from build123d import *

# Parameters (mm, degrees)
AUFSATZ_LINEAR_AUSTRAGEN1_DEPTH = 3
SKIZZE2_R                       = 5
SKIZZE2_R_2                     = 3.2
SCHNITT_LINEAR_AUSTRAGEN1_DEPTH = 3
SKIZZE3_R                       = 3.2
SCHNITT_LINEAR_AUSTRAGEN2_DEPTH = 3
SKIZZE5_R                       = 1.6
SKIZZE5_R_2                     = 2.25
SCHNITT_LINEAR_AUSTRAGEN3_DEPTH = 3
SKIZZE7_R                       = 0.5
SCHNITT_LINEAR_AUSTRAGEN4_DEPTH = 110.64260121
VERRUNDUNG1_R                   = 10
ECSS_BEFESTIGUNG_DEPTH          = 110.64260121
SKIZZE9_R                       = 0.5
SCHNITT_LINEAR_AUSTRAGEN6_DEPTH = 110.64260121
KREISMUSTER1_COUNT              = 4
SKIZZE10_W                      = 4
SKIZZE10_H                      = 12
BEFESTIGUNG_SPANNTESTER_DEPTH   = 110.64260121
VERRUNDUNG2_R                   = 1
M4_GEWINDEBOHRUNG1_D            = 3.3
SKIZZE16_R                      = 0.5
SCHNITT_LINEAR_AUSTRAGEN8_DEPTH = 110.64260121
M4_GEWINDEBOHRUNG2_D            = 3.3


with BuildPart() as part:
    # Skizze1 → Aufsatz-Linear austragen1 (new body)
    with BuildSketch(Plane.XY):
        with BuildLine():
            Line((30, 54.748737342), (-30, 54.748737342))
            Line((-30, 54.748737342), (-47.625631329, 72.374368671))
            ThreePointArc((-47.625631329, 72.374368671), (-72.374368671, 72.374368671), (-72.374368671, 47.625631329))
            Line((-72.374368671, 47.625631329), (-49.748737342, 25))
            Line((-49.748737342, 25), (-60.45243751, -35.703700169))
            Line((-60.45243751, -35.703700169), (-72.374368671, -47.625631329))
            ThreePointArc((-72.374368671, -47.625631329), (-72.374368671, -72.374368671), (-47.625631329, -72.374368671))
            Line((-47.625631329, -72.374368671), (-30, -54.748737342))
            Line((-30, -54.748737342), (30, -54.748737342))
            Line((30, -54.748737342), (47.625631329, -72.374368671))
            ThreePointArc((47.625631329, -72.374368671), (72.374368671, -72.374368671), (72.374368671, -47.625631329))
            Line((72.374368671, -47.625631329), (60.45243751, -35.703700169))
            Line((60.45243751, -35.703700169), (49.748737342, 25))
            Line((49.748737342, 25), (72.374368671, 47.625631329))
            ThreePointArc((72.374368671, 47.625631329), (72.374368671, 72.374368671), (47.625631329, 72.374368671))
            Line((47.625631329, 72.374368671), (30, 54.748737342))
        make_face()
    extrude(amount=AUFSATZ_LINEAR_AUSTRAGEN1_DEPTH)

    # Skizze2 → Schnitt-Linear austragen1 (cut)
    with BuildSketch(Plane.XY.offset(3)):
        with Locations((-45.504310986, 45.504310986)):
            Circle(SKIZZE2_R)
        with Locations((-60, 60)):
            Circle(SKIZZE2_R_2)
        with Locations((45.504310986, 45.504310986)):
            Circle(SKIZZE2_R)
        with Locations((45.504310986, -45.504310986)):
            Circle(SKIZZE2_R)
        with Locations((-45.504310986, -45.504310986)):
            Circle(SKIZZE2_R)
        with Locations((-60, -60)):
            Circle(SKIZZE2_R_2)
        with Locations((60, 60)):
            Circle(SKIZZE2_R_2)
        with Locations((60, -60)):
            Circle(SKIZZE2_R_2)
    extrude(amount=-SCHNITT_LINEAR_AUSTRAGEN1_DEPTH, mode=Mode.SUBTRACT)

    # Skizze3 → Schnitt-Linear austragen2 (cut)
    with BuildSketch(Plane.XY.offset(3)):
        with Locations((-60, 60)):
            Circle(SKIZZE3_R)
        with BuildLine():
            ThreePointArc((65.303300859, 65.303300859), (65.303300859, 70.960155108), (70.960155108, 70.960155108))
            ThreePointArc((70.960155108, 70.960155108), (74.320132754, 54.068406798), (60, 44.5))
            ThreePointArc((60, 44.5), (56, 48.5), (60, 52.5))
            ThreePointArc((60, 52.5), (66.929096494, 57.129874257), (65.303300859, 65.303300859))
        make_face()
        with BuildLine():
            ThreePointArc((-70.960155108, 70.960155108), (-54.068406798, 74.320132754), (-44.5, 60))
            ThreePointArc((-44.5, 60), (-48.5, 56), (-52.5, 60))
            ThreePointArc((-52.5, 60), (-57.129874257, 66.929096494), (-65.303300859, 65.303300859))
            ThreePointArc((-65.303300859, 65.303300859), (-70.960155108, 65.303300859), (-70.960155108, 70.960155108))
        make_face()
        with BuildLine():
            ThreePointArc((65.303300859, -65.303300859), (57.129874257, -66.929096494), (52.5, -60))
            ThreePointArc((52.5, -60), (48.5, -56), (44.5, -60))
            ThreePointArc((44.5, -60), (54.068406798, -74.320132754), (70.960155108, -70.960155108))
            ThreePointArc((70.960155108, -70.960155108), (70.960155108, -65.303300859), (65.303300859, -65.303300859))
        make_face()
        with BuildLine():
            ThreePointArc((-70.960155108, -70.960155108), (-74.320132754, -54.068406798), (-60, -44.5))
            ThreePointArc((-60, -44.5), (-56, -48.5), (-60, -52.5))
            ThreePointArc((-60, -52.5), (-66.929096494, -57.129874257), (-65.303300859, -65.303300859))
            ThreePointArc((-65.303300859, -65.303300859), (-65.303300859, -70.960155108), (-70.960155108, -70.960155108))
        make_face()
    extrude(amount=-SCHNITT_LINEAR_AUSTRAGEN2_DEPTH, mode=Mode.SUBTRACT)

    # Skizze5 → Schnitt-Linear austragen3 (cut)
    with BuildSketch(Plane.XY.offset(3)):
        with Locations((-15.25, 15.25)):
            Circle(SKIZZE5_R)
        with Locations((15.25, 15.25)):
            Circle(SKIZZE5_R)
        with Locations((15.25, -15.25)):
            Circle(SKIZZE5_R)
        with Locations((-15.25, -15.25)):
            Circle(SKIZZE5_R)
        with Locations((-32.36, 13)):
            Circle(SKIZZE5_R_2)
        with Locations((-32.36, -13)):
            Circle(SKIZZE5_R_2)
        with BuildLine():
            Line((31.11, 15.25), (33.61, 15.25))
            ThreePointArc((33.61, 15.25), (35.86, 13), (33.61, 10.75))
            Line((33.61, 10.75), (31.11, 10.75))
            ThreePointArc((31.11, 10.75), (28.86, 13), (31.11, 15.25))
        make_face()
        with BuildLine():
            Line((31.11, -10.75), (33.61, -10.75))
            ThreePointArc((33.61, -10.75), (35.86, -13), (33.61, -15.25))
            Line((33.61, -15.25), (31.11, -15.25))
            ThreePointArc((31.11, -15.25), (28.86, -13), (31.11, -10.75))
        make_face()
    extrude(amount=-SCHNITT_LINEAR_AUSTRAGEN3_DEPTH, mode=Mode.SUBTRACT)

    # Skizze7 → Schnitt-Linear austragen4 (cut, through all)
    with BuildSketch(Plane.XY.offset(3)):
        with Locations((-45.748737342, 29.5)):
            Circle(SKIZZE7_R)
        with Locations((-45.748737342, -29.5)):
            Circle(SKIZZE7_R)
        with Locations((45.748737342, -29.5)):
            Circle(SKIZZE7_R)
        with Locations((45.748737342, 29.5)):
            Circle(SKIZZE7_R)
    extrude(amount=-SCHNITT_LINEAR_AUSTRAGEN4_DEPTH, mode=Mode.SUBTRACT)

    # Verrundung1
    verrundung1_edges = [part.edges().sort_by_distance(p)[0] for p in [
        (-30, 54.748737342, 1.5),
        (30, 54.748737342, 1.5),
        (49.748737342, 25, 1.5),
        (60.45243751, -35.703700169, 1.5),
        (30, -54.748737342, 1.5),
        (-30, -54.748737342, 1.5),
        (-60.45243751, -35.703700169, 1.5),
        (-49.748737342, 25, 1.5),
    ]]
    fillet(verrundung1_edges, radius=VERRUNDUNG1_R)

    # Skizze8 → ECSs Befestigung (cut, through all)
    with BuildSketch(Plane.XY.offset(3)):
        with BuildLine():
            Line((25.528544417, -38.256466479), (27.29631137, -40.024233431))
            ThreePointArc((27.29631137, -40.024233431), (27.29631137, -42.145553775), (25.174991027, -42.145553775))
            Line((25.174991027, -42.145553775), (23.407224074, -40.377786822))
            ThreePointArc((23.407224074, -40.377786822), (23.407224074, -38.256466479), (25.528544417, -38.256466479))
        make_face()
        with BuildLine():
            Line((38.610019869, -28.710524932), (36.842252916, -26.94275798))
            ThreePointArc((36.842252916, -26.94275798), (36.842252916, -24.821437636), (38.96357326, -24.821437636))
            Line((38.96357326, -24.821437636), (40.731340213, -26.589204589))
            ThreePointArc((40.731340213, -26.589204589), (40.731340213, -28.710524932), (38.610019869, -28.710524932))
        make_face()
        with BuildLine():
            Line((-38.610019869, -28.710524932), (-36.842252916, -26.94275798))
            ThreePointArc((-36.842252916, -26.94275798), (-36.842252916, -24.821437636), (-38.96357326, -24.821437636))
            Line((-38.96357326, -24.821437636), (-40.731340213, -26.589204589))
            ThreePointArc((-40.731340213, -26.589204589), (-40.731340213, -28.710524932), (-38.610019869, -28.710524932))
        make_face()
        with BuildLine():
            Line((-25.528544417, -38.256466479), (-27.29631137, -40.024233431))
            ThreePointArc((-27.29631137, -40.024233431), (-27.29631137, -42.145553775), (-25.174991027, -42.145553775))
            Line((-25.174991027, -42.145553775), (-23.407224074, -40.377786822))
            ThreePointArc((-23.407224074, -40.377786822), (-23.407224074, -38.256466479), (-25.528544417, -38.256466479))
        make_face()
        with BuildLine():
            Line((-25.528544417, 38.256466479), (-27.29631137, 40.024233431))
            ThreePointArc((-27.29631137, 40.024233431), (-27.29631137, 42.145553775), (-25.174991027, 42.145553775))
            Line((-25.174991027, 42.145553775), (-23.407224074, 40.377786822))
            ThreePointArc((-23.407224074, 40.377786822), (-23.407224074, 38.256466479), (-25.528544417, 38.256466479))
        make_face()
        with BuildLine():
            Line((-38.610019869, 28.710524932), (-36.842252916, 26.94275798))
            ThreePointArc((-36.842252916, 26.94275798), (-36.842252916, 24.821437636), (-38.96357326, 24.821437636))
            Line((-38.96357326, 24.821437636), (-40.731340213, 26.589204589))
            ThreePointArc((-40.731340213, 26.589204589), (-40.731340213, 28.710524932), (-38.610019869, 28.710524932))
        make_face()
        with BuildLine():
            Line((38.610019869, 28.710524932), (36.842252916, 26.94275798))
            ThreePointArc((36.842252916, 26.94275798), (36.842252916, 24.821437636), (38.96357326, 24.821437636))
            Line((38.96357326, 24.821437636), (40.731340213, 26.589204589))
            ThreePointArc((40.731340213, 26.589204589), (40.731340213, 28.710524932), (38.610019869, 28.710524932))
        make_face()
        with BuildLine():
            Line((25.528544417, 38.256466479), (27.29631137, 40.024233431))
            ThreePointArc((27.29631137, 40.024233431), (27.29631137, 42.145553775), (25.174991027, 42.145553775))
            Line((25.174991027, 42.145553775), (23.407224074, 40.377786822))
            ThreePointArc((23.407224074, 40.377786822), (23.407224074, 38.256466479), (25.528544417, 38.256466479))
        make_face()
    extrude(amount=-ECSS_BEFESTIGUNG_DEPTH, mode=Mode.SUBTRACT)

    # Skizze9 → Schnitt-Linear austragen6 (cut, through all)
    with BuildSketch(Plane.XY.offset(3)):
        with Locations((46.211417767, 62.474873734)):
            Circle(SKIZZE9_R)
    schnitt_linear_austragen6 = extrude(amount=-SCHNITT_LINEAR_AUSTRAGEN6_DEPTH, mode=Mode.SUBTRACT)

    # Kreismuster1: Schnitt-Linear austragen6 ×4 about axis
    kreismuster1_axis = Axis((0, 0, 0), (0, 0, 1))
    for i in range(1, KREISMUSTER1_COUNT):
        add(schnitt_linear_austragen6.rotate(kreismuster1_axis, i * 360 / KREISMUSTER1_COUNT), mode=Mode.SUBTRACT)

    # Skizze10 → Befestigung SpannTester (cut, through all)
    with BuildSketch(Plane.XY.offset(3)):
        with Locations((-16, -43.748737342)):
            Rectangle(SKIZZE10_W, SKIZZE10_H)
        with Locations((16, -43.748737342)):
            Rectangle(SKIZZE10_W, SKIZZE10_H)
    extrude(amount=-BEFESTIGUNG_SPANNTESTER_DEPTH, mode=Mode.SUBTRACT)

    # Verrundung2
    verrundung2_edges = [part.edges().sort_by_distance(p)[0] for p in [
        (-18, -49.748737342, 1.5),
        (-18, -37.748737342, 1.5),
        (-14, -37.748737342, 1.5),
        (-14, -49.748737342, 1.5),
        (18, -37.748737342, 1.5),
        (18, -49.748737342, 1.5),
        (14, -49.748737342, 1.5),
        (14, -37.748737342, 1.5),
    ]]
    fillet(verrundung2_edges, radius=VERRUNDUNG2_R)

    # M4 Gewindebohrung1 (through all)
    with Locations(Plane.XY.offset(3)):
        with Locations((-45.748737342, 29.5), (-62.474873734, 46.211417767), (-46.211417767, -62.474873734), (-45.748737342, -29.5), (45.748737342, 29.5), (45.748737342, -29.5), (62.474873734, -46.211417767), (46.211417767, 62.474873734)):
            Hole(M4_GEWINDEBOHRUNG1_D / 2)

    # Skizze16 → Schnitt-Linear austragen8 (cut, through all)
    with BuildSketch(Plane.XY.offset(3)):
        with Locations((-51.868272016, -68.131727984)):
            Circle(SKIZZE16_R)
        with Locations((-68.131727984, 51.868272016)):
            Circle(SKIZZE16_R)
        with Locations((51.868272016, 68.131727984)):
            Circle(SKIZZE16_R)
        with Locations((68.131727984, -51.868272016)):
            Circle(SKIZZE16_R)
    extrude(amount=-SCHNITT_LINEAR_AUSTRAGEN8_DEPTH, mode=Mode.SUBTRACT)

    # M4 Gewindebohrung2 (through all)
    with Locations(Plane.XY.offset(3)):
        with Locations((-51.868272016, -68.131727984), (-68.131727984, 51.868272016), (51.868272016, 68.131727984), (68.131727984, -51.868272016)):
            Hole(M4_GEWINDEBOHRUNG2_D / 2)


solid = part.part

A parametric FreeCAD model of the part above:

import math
import FreeCAD as App
import Part
import Sketcher
Q = App.Units.Quantity


def edges_at(feature, points):
    """Names of the edges that pass closest to the given points."""
    edges = feature.Shape.Edges
    near = lambda p: min(range(len(edges)), key=lambda i: edges[i].distToShape(Part.Vertex(*p))[0])
    return sorted({f"Edge{near(p) + 1}" for p in points})


def add_polygon(sketch, points):
    """Adds a closed chain of lines whose ends are joined by coincident constraints."""
    first, n = sketch.GeometryCount, len(points)
    for a, b in zip(points, points[1:] + points[:1]):
        sketch.addGeometry(Part.LineSegment(App.Vector(*a, 0), App.Vector(*b, 0)), False)
    for i in range(n):
        sketch.addConstraint(Sketcher.Constraint("Coincident", first + i, 2, first + (i + 1) % n, 1))

doc = App.newDocument("Part")
body = doc.addObject("PartDesign::Body", "Body")

sketch1 = doc.addObject("Sketcher::SketchObject", "Sketch")
body.addObject(sketch1)
sketch1.AttachmentSupport = (doc.XY_Plane, [""])
sketch1.MapMode = "FlatFace"
sketch1.addGeometry([
    Part.LineSegment(App.Vector(30, 55, 0), App.Vector(-30, 55, 0)),
    Part.LineSegment(App.Vector(-30, 55, 0), App.Vector(-48, 72, 0)),
    Part.ArcOfCircle(Part.Circle(App.Vector(-60, 60, 0), App.Vector(0, 0, 1), 18), math.radians(45), math.radians(225)),
    Part.LineSegment(App.Vector(-72, 48, 0), App.Vector(-50, 25, 0)),
    Part.LineSegment(App.Vector(-50, 25, 0), App.Vector(-60, -36, 0)),
    Part.LineSegment(App.Vector(-60, -36, 0), App.Vector(-72, -48, 0)),
    Part.ArcOfCircle(Part.Circle(App.Vector(-60, -60, 0), App.Vector(0, 0, 1), 18), math.radians(135), math.radians(315)),
    Part.LineSegment(App.Vector(-48, -72, 0), App.Vector(-30, -55, 0)),
    Part.LineSegment(App.Vector(-30, -55, 0), App.Vector(30, -55, 0)),
    Part.LineSegment(App.Vector(30, -55, 0), App.Vector(48, -72, 0)),
    Part.ArcOfCircle(Part.Circle(App.Vector(60, -60, 0), App.Vector(0, 0, 1), 18), math.radians(-135), math.radians(45)),
    Part.LineSegment(App.Vector(72, -48, 0), App.Vector(60, -36, 0)),
    Part.LineSegment(App.Vector(60, -36, 0), App.Vector(50, 25, 0)),
    Part.LineSegment(App.Vector(50, 25, 0), App.Vector(72, 48, 0)),
    Part.ArcOfCircle(Part.Circle(App.Vector(60, 60, 0), App.Vector(0, 0, 1), 18), math.radians(-45), math.radians(135)),
    Part.LineSegment(App.Vector(48, 72, 0), App.Vector(30, 55, 0)),
], False)
sketch1.addConstraint([
    Sketcher.Constraint("Coincident", 0, 2, 1, 1),
    Sketcher.Constraint("Tangent", 1, 2, 2, 1),
    Sketcher.Constraint("Tangent", 2, 2, 3, 1),
    Sketcher.Constraint("Coincident", 3, 2, 4, 1),
    Sketcher.Constraint("Coincident", 4, 2, 5, 1),
    Sketcher.Constraint("Tangent", 5, 2, 6, 1),
    Sketcher.Constraint("Tangent", 6, 2, 7, 1),
    Sketcher.Constraint("Coincident", 7, 2, 8, 1),
    Sketcher.Constraint("Coincident", 8, 2, 9, 1),
    Sketcher.Constraint("Tangent", 9, 2, 10, 1),
    Sketcher.Constraint("Tangent", 10, 2, 11, 1),
    Sketcher.Constraint("Coincident", 11, 2, 12, 1),
    Sketcher.Constraint("Coincident", 12, 2, 13, 1),
    Sketcher.Constraint("Tangent", 13, 2, 14, 1),
    Sketcher.Constraint("Tangent", 14, 2, 15, 1),
    Sketcher.Constraint("Coincident", 15, 2, 0, 1),
    Sketcher.Constraint("Horizontal", 0),
    Sketcher.Constraint("Horizontal", 8),
    Sketcher.Constraint("Equal", 2, 6),
    Sketcher.Constraint("Equal", 6, 10),
    Sketcher.Constraint("Equal", 10, 14),
    Sketcher.Constraint("Symmetric", 2, 3, 10, 3, -1, 1),
    Sketcher.Constraint("Symmetric", 6, 3, 14, 3, -1, 1),
    Sketcher.Constraint("Symmetric", 0, 2, 8, 2, -1, 1),
    Sketcher.Constraint("Symmetric", 6, 3, 10, 3, -2),
    Sketcher.Constraint("Symmetric", 4, 2, 11, 2, -2),
    Sketcher.Constraint("Symmetric", 3, 2, 12, 2, -2),
    Sketcher.Constraint("Parallel", 1, 3),
    Sketcher.Constraint("Perpendicular", 3, 5),
    Sketcher.Constraint("Parallel", 5, 7),
    Sketcher.Constraint("Parallel", 9, 11),
    Sketcher.Constraint("Parallel", 13, 15),
    Sketcher.Constraint("Radius", 2, 17.5),
    Sketcher.Constraint("DistanceX", 0, 2, 0, 1, 60.0),
    Sketcher.Constraint("Angle", 4, Q("-100 deg")),
    Sketcher.Constraint("DistanceX", 2, 3, -1, 1, 60.0),
    Sketcher.Constraint("DistanceY", -1, 1, 2, 3, 60.0),
    Sketcher.Constraint("DistanceY", -1, 1, 3, 2, 25.0),
])
pad1 = doc.addObject("PartDesign::Pad", "Pad")
body.addObject(pad1)
pad1.Profile = sketch1
pad1.Length = 3

sketch2 = doc.addObject("Sketcher::SketchObject", "Sketch001")
body.addObject(sketch2)
sketch2.AttachmentSupport = (doc.XY_Plane, [""])
sketch2.MapMode = "FlatFace"
sketch2.AttachmentOffset = App.Placement(App.Vector(0, 0, 3), App.Rotation())
sketch2.addGeometry([
    Part.Circle(App.Vector(-45.5, 45.5, 0), App.Vector(0, 0, 1), 5),
    Part.Circle(App.Vector(-60, 60, 0), App.Vector(0, 0, 1), 3.2),
    Part.Circle(App.Vector(45.5, 45.5, 0), App.Vector(0, 0, 1), 5),
    Part.Circle(App.Vector(45.5, -45.5, 0), App.Vector(0, 0, 1), 5),
    Part.Circle(App.Vector(-45.5, -45.5, 0), App.Vector(0, 0, 1), 5),
    Part.Circle(App.Vector(-60, -60, 0), App.Vector(0, 0, 1), 3.2),
    Part.Circle(App.Vector(60, 60, 0), App.Vector(0, 0, 1), 3.2),
    Part.Circle(App.Vector(60, -60, 0), App.Vector(0, 0, 1), 3.2),
], False)
sketch2.addConstraint([
    Sketcher.Constraint("Equal", 0, 2),
    Sketcher.Constraint("Equal", 2, 3),
    Sketcher.Constraint("Equal", 3, 4),
    Sketcher.Constraint("Equal", 1, 5),
    Sketcher.Constraint("Equal", 5, 6),
    Sketcher.Constraint("Equal", 6, 7),
    Sketcher.Constraint("Symmetric", 0, 3, 3, 3, -1, 1),
    Sketcher.Constraint("Symmetric", 2, 3, 4, 3, -1, 1),
    Sketcher.Constraint("Symmetric", 5, 3, 6, 3, -1, 1),
    Sketcher.Constraint("Symmetric", 1, 3, 7, 3, -1, 1),
    Sketcher.Constraint("Symmetric", 0, 3, 2, 3, -2),
    Sketcher.Constraint("Symmetric", 1, 3, 6, 3, -2),
    Sketcher.Constraint("Diameter", 0, 10.0),
    Sketcher.Constraint("Diameter", 1, 6.4),
    Sketcher.Constraint("DistanceX", 1, 3, -1, 1, 60.0),
    Sketcher.Constraint("DistanceY", -1, 1, 1, 3, 60.0),
    Sketcher.Constraint("DistanceX", 0, 3, -1, 1, 45.504311),
    Sketcher.Constraint("DistanceY", -1, 1, 0, 3, 45.504311),
])
pocket1 = doc.addObject("PartDesign::Pocket", "Pocket")
body.addObject(pocket1)
pocket1.Profile = sketch2
pocket1.Length = 3

sketch3 = doc.addObject("Sketcher::SketchObject", "Sketch002")
body.addObject(sketch3)
sketch3.AttachmentSupport = (doc.XY_Plane, [""])
sketch3.MapMode = "FlatFace"
sketch3.AttachmentOffset = App.Placement(App.Vector(0, 0, 3), App.Rotation())
sketch3.addGeometry([
    Part.Circle(App.Vector(-60, 60, 0), App.Vector(0, 0, 1), 3.2),
    Part.ArcOfCircle(Part.Circle(App.Vector(68.1, 68.1, 0), App.Vector(0, 0, 1), 4), math.radians(45), math.radians(225)),
    Part.ArcOfCircle(Part.Circle(App.Vector(60, 60, 0), App.Vector(0, 0, 1), 7.5), math.radians(-90), math.radians(45)),
    Part.ArcOfCircle(Part.Circle(App.Vector(60, 48.5, 0), App.Vector(0, 0, 1), 4), math.radians(90), math.radians(270)),
    Part.ArcOfCircle(Part.Circle(App.Vector(60, 60, 0), App.Vector(0, 0, 1), 15.5), math.radians(-90), math.radians(45)),
    Part.ArcOfCircle(Part.Circle(App.Vector(-60, 60, 0), App.Vector(0, 0, 1), 15.5), math.radians(0), math.radians(135)),
    Part.ArcOfCircle(Part.Circle(App.Vector(-68.1, 68.1, 0), App.Vector(0, 0, 1), 4), math.radians(135), math.radians(315)),
    Part.ArcOfCircle(Part.Circle(App.Vector(-60, 60, 0), App.Vector(0, 0, 1), 7.5), math.radians(0), math.radians(135)),
    Part.ArcOfCircle(Part.Circle(App.Vector(-48.5, 60, 0), App.Vector(0, 0, 1), 4), math.radians(180), math.radians(360)),
    Part.ArcOfCircle(Part.Circle(App.Vector(60, -60, 0), App.Vector(0, 0, 1), 7.5), math.radians(180), math.radians(315)),
    Part.ArcOfCircle(Part.Circle(App.Vector(48.5, -60, 0), App.Vector(0, 0, 1), 4), math.radians(0), math.radians(180)),
    Part.ArcOfCircle(Part.Circle(App.Vector(60, -60, 0), App.Vector(0, 0, 1), 15.5), math.radians(180), math.radians(315)),
    Part.ArcOfCircle(Part.Circle(App.Vector(68.1, -68.1, 0), App.Vector(0, 0, 1), 4), math.radians(-45), math.radians(135)),
    Part.ArcOfCircle(Part.Circle(App.Vector(-60, -60, 0), App.Vector(0, 0, 1), 15.5), math.radians(90), math.radians(225)),
    Part.ArcOfCircle(Part.Circle(App.Vector(-68.1, -68.1, 0), App.Vector(0, 0, 1), 4), math.radians(-135), math.radians(45)),
    Part.ArcOfCircle(Part.Circle(App.Vector(-60, -60, 0), App.Vector(0, 0, 1), 7.5), math.radians(90), math.radians(225)),
    Part.ArcOfCircle(Part.Circle(App.Vector(-60, -48.5, 0), App.Vector(0, 0, 1), 4), math.radians(-90), math.radians(90)),
], False)
sketch3.addConstraint([
    Sketcher.Constraint("Tangent", 1, 2, 2, 2),
    Sketcher.Constraint("Tangent", 2, 1, 3, 1),
    Sketcher.Constraint("Tangent", 3, 2, 4, 1),
    Sketcher.Constraint("Tangent", 4, 2, 1, 1),
    Sketcher.Constraint("Tangent", 5, 2, 6, 1),
    Sketcher.Constraint("Tangent", 6, 2, 7, 2),
    Sketcher.Constraint("Tangent", 7, 1, 8, 1),
    Sketcher.Constraint("Tangent", 8, 2, 5, 1),
    Sketcher.Constraint("Tangent", 9, 1, 10, 1),
    Sketcher.Constraint("Tangent", 10, 2, 11, 1),
    Sketcher.Constraint("Tangent", 11, 2, 12, 1),
    Sketcher.Constraint("Tangent", 12, 2, 9, 2),
    Sketcher.Constraint("Tangent", 13, 2, 14, 1),
    Sketcher.Constraint("Tangent", 14, 2, 15, 2),
    Sketcher.Constraint("Tangent", 15, 1, 16, 1),
    Sketcher.Constraint("Tangent", 16, 2, 13, 1),
    Sketcher.Constraint("Coincident", 4, 3, 2, 3),
    Sketcher.Constraint("Coincident", 5, 3, 0, 3),
    Sketcher.Constraint("Coincident", 7, 3, 0, 3),
    Sketcher.Constraint("Coincident", 11, 3, 9, 3),
    Sketcher.Constraint("Coincident", 15, 3, 13, 3),
    Sketcher.Constraint("Equal", 4, 5),
    Sketcher.Constraint("Equal", 3, 6),
    Sketcher.Constraint("Equal", 7, 9),
    Sketcher.Constraint("Equal", 8, 10),
    Sketcher.Constraint("Equal", 11, 13),
    Sketcher.Constraint("Equal", 12, 14),
    Sketcher.Constraint("Symmetric", 0, 3, 9, 3, -1, 1),
    Sketcher.Constraint("Symmetric", 2, 3, 13, 3, -1, 1),
    Sketcher.Constraint("Symmetric", 0, 3, 2, 3, -2),
    Sketcher.Constraint("Horizontal", 1, 3, 6, 3),
    Sketcher.Constraint("Horizontal", 7, 3, 8, 3),
    Sketcher.Constraint("Horizontal", 9, 3, 10, 3),
    Sketcher.Constraint("Horizontal", 12, 3, 14, 3),
    Sketcher.Constraint("Vertical", 2, 3, 3, 3),
    Sketcher.Constraint("Vertical", 1, 3, 12, 3),
    Sketcher.Constraint("Vertical", 15, 3, 16, 3),
    Sketcher.Constraint("Radius", 1, 4.0),
    Sketcher.Constraint("Diameter", 0, 6.4),
    Sketcher.Constraint("Radius", 2, 7.5),
    Sketcher.Constraint("DistanceX", 0, 3, -1, 1, 60.0),
    Sketcher.Constraint("DistanceY", -1, 1, 0, 3, 60.0),
    Sketcher.Constraint("DistanceX", -1, 1, 1, 2, 65.303301),
])
pocket2 = doc.addObject("PartDesign::Pocket", "Pocket001")
body.addObject(pocket2)
pocket2.Profile = sketch3
pocket2.Length = 3

sketch4 = doc.addObject("Sketcher::SketchObject", "Sketch003")
body.addObject(sketch4)
sketch4.AttachmentSupport = (doc.XY_Plane, [""])
sketch4.MapMode = "FlatFace"
sketch4.AttachmentOffset = App.Placement(App.Vector(0, 0, 3), App.Rotation())
sketch4.addGeometry([
    Part.Circle(App.Vector(-15.2, 15.2, 0), App.Vector(0, 0, 1), 1.6),
    Part.Circle(App.Vector(15.2, 15.2, 0), App.Vector(0, 0, 1), 1.6),
    Part.Circle(App.Vector(15.2, -15.2, 0), App.Vector(0, 0, 1), 1.6),
    Part.Circle(App.Vector(-15.2, -15.2, 0), App.Vector(0, 0, 1), 1.6),
    Part.Circle(App.Vector(-32.4, 13, 0), App.Vector(0, 0, 1), 2.2),
    Part.Circle(App.Vector(-32.4, -13, 0), App.Vector(0, 0, 1), 2.2),
    Part.LineSegment(App.Vector(33.6, 15.2, 0), App.Vector(31.1, 15.2, 0)),
    Part.ArcOfCircle(Part.Circle(App.Vector(31.1, 13, 0), App.Vector(0, 0, 1), 2.2), math.radians(90), math.radians(270)),
    Part.LineSegment(App.Vector(31.1, 10.8, 0), App.Vector(33.6, 10.8, 0)),
    Part.ArcOfCircle(Part.Circle(App.Vector(33.6, 13, 0), App.Vector(0, 0, 1), 2.2), math.radians(-90), math.radians(90)),
    Part.LineSegment(App.Vector(33.6, -10.8, 0), App.Vector(31.1, -10.8, 0)),
    Part.ArcOfCircle(Part.Circle(App.Vector(31.1, -13, 0), App.Vector(0, 0, 1), 2.2), math.radians(90), math.radians(270)),
    Part.LineSegment(App.Vector(31.1, -15.2, 0), App.Vector(33.6, -15.2, 0)),
    Part.ArcOfCircle(Part.Circle(App.Vector(33.6, -13, 0), App.Vector(0, 0, 1), 2.2), math.radians(-90), math.radians(90)),
], False)
sketch4.addConstraint([
    Sketcher.Constraint("Tangent", 6, 2, 7, 1),
    Sketcher.Constraint("Tangent", 7, 2, 8, 1),
    Sketcher.Constraint("Tangent", 8, 2, 9, 1),
    Sketcher.Constraint("Tangent", 9, 2, 6, 1),
    Sketcher.Constraint("Tangent", 10, 2, 11, 1),
    Sketcher.Constraint("Tangent", 11, 2, 12, 1),
    Sketcher.Constraint("Tangent", 12, 2, 13, 1),
    Sketcher.Constraint("Tangent", 13, 2, 10, 1),
    Sketcher.Constraint("Horizontal", 6),
    Sketcher.Constraint("Horizontal", 8),
    Sketcher.Constraint("Horizontal", 10),
    Sketcher.Constraint("Horizontal", 12),
    Sketcher.Constraint("Equal", 0, 1),
    Sketcher.Constraint("Equal", 1, 2),
    Sketcher.Constraint("Equal", 2, 3),
    Sketcher.Constraint("Equal", 4, 5),
    Sketcher.Constraint("Equal", 5, 7),
    Sketcher.Constraint("Equal", 9, 11),
    Sketcher.Constraint("Symmetric", 0, 3, 2, 3, -1, 1),
    Sketcher.Constraint("Symmetric", 1, 3, 3, 3, -1, 1),
    Sketcher.Constraint("Symmetric", 0, 3, 1, 3, -2),
    Sketcher.Constraint("Symmetric", 4, 3, 5, 3, -1),
    Sketcher.Constraint("Symmetric", 7, 3, 11, 3, -1),
    Sketcher.Constraint("Horizontal", 4, 3, 7, 3),
    Sketcher.Constraint("Horizontal", 1, 3, 6, 2),
    Sketcher.Constraint("Vertical", 9, 3, 13, 3),
    Sketcher.Constraint("Diameter", 0, 3.2),
    Sketcher.Constraint("Diameter", 4, 4.5),
    Sketcher.Constraint("DistanceX", 6, 2, 6, 1, 2.5),
    Sketcher.Constraint("DistanceY", -1, 1, 4, 3, 13.0),
    Sketcher.Constraint("DistanceX", 0, 3, 1, 3, 30.5),
    Sketcher.Constraint("DistanceX", 4, 3, -1, 1, 32.36),
    Sketcher.Constraint("DistanceX", -1, 1, 7, 3, 31.11),
])
pocket3 = doc.addObject("PartDesign::Pocket", "Pocket002")
body.addObject(pocket3)
pocket3.Profile = sketch4
pocket3.Length = 3

sketch5 = doc.addObject("Sketcher::SketchObject", "Sketch004")
body.addObject(sketch5)
sketch5.AttachmentSupport = (doc.XY_Plane, [""])
sketch5.MapMode = "FlatFace"
sketch5.AttachmentOffset = App.Placement(App.Vector(0, 0, 3), App.Rotation())
sketch5.addGeometry([
    Part.Circle(App.Vector(-45.7, 29.5, 0), App.Vector(0, 0, 1), 0.5),
    Part.Circle(App.Vector(-45.7, -29.5, 0), App.Vector(0, 0, 1), 0.5),
    Part.Circle(App.Vector(45.7, -29.5, 0), App.Vector(0, 0, 1), 0.5),
    Part.Circle(App.Vector(45.7, 29.5, 0), App.Vector(0, 0, 1), 0.5),
], False)
sketch5.addConstraint([
    Sketcher.Constraint("Equal", 0, 1),
    Sketcher.Constraint("Equal", 1, 2),
    Sketcher.Constraint("Equal", 2, 3),
    Sketcher.Constraint("Symmetric", 0, 3, 2, 3, -1, 1),
    Sketcher.Constraint("Symmetric", 1, 3, 3, 3, -1, 1),
    Sketcher.Constraint("Symmetric", 1, 3, 2, 3, -2),
    Sketcher.Constraint("Diameter", 0, 1.0),
    Sketcher.Constraint("DistanceY", 1, 3, 0, 3, 59.0),
    Sketcher.Constraint("DistanceX", 0, 3, -1, 1, 45.748737),
])
pocket4 = doc.addObject("PartDesign::Pocket", "Pocket003")
body.addObject(pocket4)
pocket4.Profile = sketch5
pocket4.Type = "ThroughAll"
doc.recompute()

fillet = doc.addObject("PartDesign::Fillet", "Fillet")
body.addObject(fillet)
fillet.Base = (pocket4, edges_at(pocket4, [
    (-30, 54.749, 1.5),
    (30, 54.749, 1.5),
    (49.749, 25, 1.5),
    (60.452, -35.704, 1.5),
    (30, -54.749, 1.5),
    (-30, -54.749, 1.5),
    (-60.452, -35.704, 1.5),
    (-49.749, 25, 1.5),
]))
fillet.Radius = 10

sketch6 = doc.addObject("Sketcher::SketchObject", "Sketch005")
body.addObject(sketch6)
sketch6.AttachmentSupport = (doc.XY_Plane, [""])
sketch6.MapMode = "FlatFace"
sketch6.AttachmentOffset = App.Placement(App.Vector(0, 0, 3), App.Rotation())
sketch6.addGeometry([
    Part.LineSegment(App.Vector(27.3, -40, 0), App.Vector(25.5, -38.3, 0)),
    Part.ArcOfCircle(Part.Circle(App.Vector(24.5, -39.3, 0), App.Vector(0, 0, 1), 1.5), math.radians(45), math.radians(225)),
    Part.LineSegment(App.Vector(23.4, -40.4, 0), App.Vector(25.2, -42.1, 0)),
    Part.ArcOfCircle(Part.Circle(App.Vector(26.2, -41.1, 0), App.Vector(0, 0, 1), 1.5), math.radians(-135), math.radians(45)),
    Part.LineSegment(App.Vector(36.8, -26.9, 0), App.Vector(38.6, -28.7, 0)),
    Part.ArcOfCircle(Part.Circle(App.Vector(39.7, -27.6, 0), App.Vector(0, 0, 1), 1.5), math.radians(-135), math.radians(45)),
    Part.LineSegment(App.Vector(40.7, -26.6, 0), App.Vector(39, -24.8, 0)),
    Part.ArcOfCircle(Part.Circle(App.Vector(37.9, -25.9, 0), App.Vector(0, 0, 1), 1.5), math.radians(45), math.radians(225)),
    Part.LineSegment(App.Vector(-38.6, -28.7, 0), App.Vector(-36.8, -26.9, 0)),
    Part.ArcOfCircle(Part.Circle(App.Vector(-37.9, -25.9, 0), App.Vector(0, 0, 1), 1.5), math.radians(-45), math.radians(135)),
    Part.LineSegment(App.Vector(-39, -24.8, 0), App.Vector(-40.7, -26.6, 0)),
    Part.ArcOfCircle(Part.Circle(App.Vector(-39.7, -27.6, 0), App.Vector(0, 0, 1), 1.5), math.radians(135), math.radians(315)),
    Part.LineSegment(App.Vector(-25.5, -38.3, 0), App.Vector(-27.3, -40, 0)),
    Part.ArcOfCircle(Part.Circle(App.Vector(-26.2, -41.1, 0), App.Vector(0, 0, 1), 1.5), math.radians(135), math.radians(315)),
    Part.LineSegment(App.Vector(-25.2, -42.1, 0), App.Vector(-23.4, -40.4, 0)),
    Part.ArcOfCircle(Part.Circle(App.Vector(-24.5, -39.3, 0), App.Vector(0, 0, 1), 1.5), math.radians(-45), math.radians(135)),
    Part.LineSegment(App.Vector(-27.3, 40, 0), App.Vector(-25.5, 38.3, 0)),
    Part.ArcOfCircle(Part.Circle(App.Vector(-24.5, 39.3, 0), App.Vector(0, 0, 1), 1.5), math.radians(-135), math.radians(45)),
    Part.LineSegment(App.Vector(-23.4, 40.4, 0), App.Vector(-25.2, 42.1, 0)),
    Part.ArcOfCircle(Part.Circle(App.Vector(-26.2, 41.1, 0), App.Vector(0, 0, 1), 1.5), math.radians(45), math.radians(225)),
    Part.LineSegment(App.Vector(-36.8, 26.9, 0), App.Vector(-38.6, 28.7, 0)),
    Part.ArcOfCircle(Part.Circle(App.Vector(-39.7, 27.6, 0), App.Vector(0, 0, 1), 1.5), math.radians(45), math.radians(225)),
    Part.LineSegment(App.Vector(-40.7, 26.6, 0), App.Vector(-39, 24.8, 0)),
    Part.ArcOfCircle(Part.Circle(App.Vector(-37.9, 25.9, 0), App.Vector(0, 0, 1), 1.5), math.radians(-135), math.radians(45)),
    Part.LineSegment(App.Vector(38.6, 28.7, 0), App.Vector(36.8, 26.9, 0)),
    Part.ArcOfCircle(Part.Circle(App.Vector(37.9, 25.9, 0), App.Vector(0, 0, 1), 1.5), math.radians(135), math.radians(315)),
    Part.LineSegment(App.Vector(39, 24.8, 0), App.Vector(40.7, 26.6, 0)),
    Part.ArcOfCircle(Part.Circle(App.Vector(39.7, 27.6, 0), App.Vector(0, 0, 1), 1.5), math.radians(-45), math.radians(135)),
    Part.LineSegment(App.Vector(25.5, 38.3, 0), App.Vector(27.3, 40, 0)),
    Part.ArcOfCircle(Part.Circle(App.Vector(26.2, 41.1, 0), App.Vector(0, 0, 1), 1.5), math.radians(-45), math.radians(135)),
    Part.LineSegment(App.Vector(25.2, 42.1, 0), App.Vector(23.4, 40.4, 0)),
    Part.ArcOfCircle(Part.Circle(App.Vector(24.5, 39.3, 0), App.Vector(0, 0, 1), 1.5), math.radians(135), math.radians(315)),
], False)
sketch6.addConstraint([
    Sketcher.Constraint("Tangent", 0, 2, 1, 1),
    Sketcher.Constraint("Tangent", 1, 2, 2, 1),
    Sketcher.Constraint("Tangent", 2, 2, 3, 1),
    Sketcher.Constraint("Tangent", 3, 2, 0, 1),
    Sketcher.Constraint("Tangent", 4, 2, 5, 1),
    Sketcher.Constraint("Tangent", 5, 2, 6, 1),
    Sketcher.Constraint("Tangent", 6, 2, 7, 1),
    Sketcher.Constraint("Tangent", 7, 2, 4, 1),
    Sketcher.Constraint("Tangent", 8, 2, 9, 1),
    Sketcher.Constraint("Tangent", 9, 2, 10, 1),
    Sketcher.Constraint("Tangent", 10, 2, 11, 1),
    Sketcher.Constraint("Tangent", 11, 2, 8, 1),
    Sketcher.Constraint("Tangent", 12, 2, 13, 1),
    Sketcher.Constraint("Tangent", 13, 2, 14, 1),
    Sketcher.Constraint("Tangent", 14, 2, 15, 1),
    Sketcher.Constraint("Tangent", 15, 2, 12, 1),
    Sketcher.Constraint("Tangent", 16, 2, 17, 1),
    Sketcher.Constraint("Tangent", 17, 2, 18, 1),
    Sketcher.Constraint("Tangent", 18, 2, 19, 1),
    Sketcher.Constraint("Tangent", 19, 2, 16, 1),
    Sketcher.Constraint("Tangent", 20, 2, 21, 1),
    Sketcher.Constraint("Tangent", 21, 2, 22, 1),
    Sketcher.Constraint("Tangent", 22, 2, 23, 1),
    Sketcher.Constraint("Tangent", 23, 2, 20, 1),
    Sketcher.Constraint("Tangent", 24, 2, 25, 1),
    Sketcher.Constraint("Tangent", 25, 2, 26, 1),
    Sketcher.Constraint("Tangent", 26, 2, 27, 1),
    Sketcher.Constraint("Tangent", 27, 2, 24, 1),
    Sketcher.Constraint("Tangent", 28, 2, 29, 1),
    Sketcher.Constraint("Tangent", 29, 2, 30, 1),
    Sketcher.Constraint("Tangent", 30, 2, 31, 1),
    Sketcher.Constraint("Tangent", 31, 2, 28, 1),
    Sketcher.Constraint("Equal", 1, 3),
    Sketcher.Constraint("Equal", 3, 5),
    Sketcher.Constraint("Equal", 5, 7),
    Sketcher.Constraint("Equal", 7, 9),
    Sketcher.Constraint("Equal", 9, 11),
    Sketcher.Constraint("Equal", 11, 13),
    Sketcher.Constraint("Equal", 13, 15),
    Sketcher.Constraint("Equal", 15, 17),
    Sketcher.Constraint("Equal", 17, 19),
    Sketcher.Constraint("Equal", 19, 21),
    Sketcher.Constraint("Equal", 21, 23),
    Sketcher.Constraint("Equal", 23, 25),
    Sketcher.Constraint("Equal", 25, 27),
    Sketcher.Constraint("Equal", 27, 29),
    Sketcher.Constraint("Equal", 29, 31),
    Sketcher.Constraint("Symmetric", 1, 3, 17, 3, -1, 1),
    Sketcher.Constraint("Symmetric", 3, 3, 19, 3, -1, 1),
    Sketcher.Constraint("Symmetric", 5, 3, 21, 3, -1, 1),
    Sketcher.Constraint("Symmetric", 7, 3, 23, 3, -1, 1),
    Sketcher.Constraint("Symmetric", 9, 3, 25, 3, -1, 1),
    Sketcher.Constraint("Symmetric", 11, 3, 27, 3, -1, 1),
    Sketcher.Constraint("Symmetric", 13, 3, 29, 3, -1, 1),
    Sketcher.Constraint("Symmetric", 15, 3, 31, 3, -1, 1),
    Sketcher.Constraint("Symmetric", 7, 3, 9, 3, -2),
    Sketcher.Constraint("Symmetric", 5, 3, 11, 3, -2),
    Sketcher.Constraint("Symmetric", 3, 3, 13, 3, -2),
    Sketcher.Constraint("Symmetric", 1, 3, 15, 3, -2),
    Sketcher.Constraint("Parallel", 2, 4),
    Sketcher.Constraint("Perpendicular", 6, 8),
    Sketcher.Constraint("Equal", 2, 4),
    Sketcher.Constraint("Radius", 1, 1.5),
    Sketcher.Constraint("Distance", 0, 2.5),
    Sketcher.Constraint("DistanceY", 0, 2, 5, 3, 10.606602),
    Sketcher.Constraint("DistanceX", 8, 2, 13, 3, 10.606602),
    Sketcher.Constraint("DistanceX", -1, 1, 3, 3, 26.235651),
    Sketcher.Constraint("DistanceY", 11, 3, 17, 3, 66.966991),
])
pocket5 = doc.addObject("PartDesign::Pocket", "Pocket004")
body.addObject(pocket5)
pocket5.Profile = sketch6
pocket5.Type = "ThroughAll"

sketch7 = doc.addObject("Sketcher::SketchObject", "Sketch006")
body.addObject(sketch7)
sketch7.AttachmentSupport = (doc.XY_Plane, [""])
sketch7.MapMode = "FlatFace"
sketch7.AttachmentOffset = App.Placement(App.Vector(0, 0, 3), App.Rotation())
sketch7.addGeometry(Part.Circle(App.Vector(46.2, 62.5, 0), App.Vector(0, 0, 1), 0.5), False)
sketch7.addConstraint([
    Sketcher.Constraint("Diameter", 0, 1.0),
    Sketcher.Constraint("DistanceX", -1, 1, 0, 3, 46.211418),
    Sketcher.Constraint("DistanceY", -1, 1, 0, 3, 62.474874),
])
pocket6 = doc.addObject("PartDesign::Pocket", "Pocket005")
body.addObject(pocket6)
pocket6.Profile = sketch7
pocket6.Type = "ThroughAll"
doc.recompute()

polarpattern = doc.addObject("PartDesign::PolarPattern", "PolarPattern")
body.addObject(polarpattern)
polarpattern.Originals = [pocket6]
polarpattern.Axis = (doc.Z_Axis, [""])
polarpattern.Angle = 360
polarpattern.Occurrences = 4
body.Tip = polarpattern

sketch8 = doc.addObject("Sketcher::SketchObject", "Sketch007")
body.addObject(sketch8)
sketch8.AttachmentSupport = (doc.XY_Plane, [""])
sketch8.MapMode = "FlatFace"
sketch8.AttachmentOffset = App.Placement(App.Vector(0, 0, 3), App.Rotation())
add_polygon(sketch8, [(-18, -37.7), (-18, -49.7), (-14, -49.7), (-14, -37.7)])
add_polygon(sketch8, [(14, -37.7), (14, -49.7), (18, -49.7), (18, -37.7)])
sketch8.addConstraint([
    Sketcher.Constraint("Vertical", 0),
    Sketcher.Constraint("Horizontal", 1),
    Sketcher.Constraint("Vertical", 2),
    Sketcher.Constraint("Horizontal", 3),
    Sketcher.Constraint("Vertical", 4),
    Sketcher.Constraint("Horizontal", 5),
    Sketcher.Constraint("Vertical", 6),
    Sketcher.Constraint("Horizontal", 7),
    Sketcher.Constraint("Symmetric", 1, 2, 4, 2, -2),
    Sketcher.Constraint("Symmetric", 3, 2, 6, 2, -2),
    Sketcher.Constraint("DistanceX", 1, 1, 1, 2, 4.0),
    Sketcher.Constraint("DistanceY", 0, 2, 0, 1, 12.0),
    Sketcher.Constraint("DistanceX", 0, 2, -1, 1, 18.0),
    Sketcher.Constraint("DistanceY", 0, 2, -1, 1, 49.748737),
])
pocket7 = doc.addObject("PartDesign::Pocket", "Pocket006")
body.addObject(pocket7)
pocket7.Profile = sketch8
pocket7.Type = "ThroughAll"
doc.recompute()

fillet2 = doc.addObject("PartDesign::Fillet", "Fillet001")
body.addObject(fillet2)
fillet2.Base = (pocket7, edges_at(pocket7, [
    (-18, -49.749, 1.5),
    (-18, -37.749, 1.5),
    (-14, -37.749, 1.5),
    (-14, -49.749, 1.5),
    (18, -37.749, 1.5),
    (18, -49.749, 1.5),
    (14, -49.749, 1.5),
    (14, -37.749, 1.5),
]))
fillet2.Radius = 1

sketch9 = doc.addObject("Sketcher::SketchObject", "Sketch008")
body.addObject(sketch9)
sketch9.AttachmentSupport = (doc.XY_Plane, [""])
sketch9.MapMode = "FlatFace"
sketch9.AttachmentOffset = App.Placement(App.Vector(0, 0, 3), App.Rotation())
sketch9.addGeometry([
    Part.Circle(App.Vector(-45.7, 29.5, 0), App.Vector(0, 0, 1), 1.6),
    Part.Circle(App.Vector(-62.5, 46.2, 0), App.Vector(0, 0, 1), 1.6),
    Part.Circle(App.Vector(-46.2, -62.5, 0), App.Vector(0, 0, 1), 1.6),
    Part.Circle(App.Vector(-45.7, -29.5, 0), App.Vector(0, 0, 1), 1.6),
    Part.Circle(App.Vector(45.7, 29.5, 0), App.Vector(0, 0, 1), 1.6),
    Part.Circle(App.Vector(45.7, -29.5, 0), App.Vector(0, 0, 1), 1.6),
    Part.Circle(App.Vector(62.5, -46.2, 0), App.Vector(0, 0, 1), 1.6),
    Part.Circle(App.Vector(46.2, 62.5, 0), App.Vector(0, 0, 1), 1.6),
], False)
sketch9.addConstraint([
    Sketcher.Constraint("Equal", 0, 1),
    Sketcher.Constraint("Equal", 1, 2),
    Sketcher.Constraint("Equal", 2, 3),
    Sketcher.Constraint("Equal", 3, 4),
    Sketcher.Constraint("Equal", 4, 5),
    Sketcher.Constraint("Equal", 5, 6),
    Sketcher.Constraint("Equal", 6, 7),
    Sketcher.Constraint("Symmetric", 3, 3, 4, 3, -1, 1),
    Sketcher.Constraint("Symmetric", 0, 3, 5, 3, -1, 1),
    Sketcher.Constraint("Symmetric", 1, 3, 6, 3, -1, 1),
    Sketcher.Constraint("Symmetric", 2, 3, 7, 3, -1, 1),
    Sketcher.Constraint("Symmetric", 0, 3, 4, 3, -2),
    Sketcher.Constraint("Diameter", 0, 3.3),
    Sketcher.Constraint("DistanceY", 3, 3, 0, 3, 59.0),
    Sketcher.Constraint("DistanceX", 2, 3, 0, 3, 0.46268),
    Sketcher.Constraint("DistanceY", 2, 3, 1, 3, 108.686292),
    Sketcher.Constraint("DistanceX", 1, 3, 4, 3, 108.223611),
    Sketcher.Constraint("DistanceX", 0, 3, -1, 1, 45.748737),
    Sketcher.Constraint("DistanceY", -1, 1, 1, 3, 46.211418),
])
doc.recompute()
hole = doc.addObject("PartDesign::Hole", "Hole")
body.addObject(hole)
hole.Profile = sketch9
hole.ThreadType = "None"
hole.Diameter = 3.3
hole.DepthType = "ThroughAll"

sketch10 = doc.addObject("Sketcher::SketchObject", "Sketch009")
body.addObject(sketch10)
sketch10.AttachmentSupport = (doc.XY_Plane, [""])
sketch10.MapMode = "FlatFace"
sketch10.AttachmentOffset = App.Placement(App.Vector(0, 0, 3), App.Rotation())
sketch10.addGeometry([
    Part.Circle(App.Vector(-51.9, -68.1, 0), App.Vector(0, 0, 1), 0.5),
    Part.Circle(App.Vector(-68.1, 51.9, 0), App.Vector(0, 0, 1), 0.5),
    Part.Circle(App.Vector(51.9, 68.1, 0), App.Vector(0, 0, 1), 0.5),
    Part.Circle(App.Vector(68.1, -51.9, 0), App.Vector(0, 0, 1), 0.5),
], False)
sketch10.addConstraint([
    Sketcher.Constraint("Equal", 0, 1),
    Sketcher.Constraint("Equal", 1, 2),
    Sketcher.Constraint("Equal", 2, 3),
    Sketcher.Constraint("Symmetric", 0, 3, 2, 3, -1, 1),
    Sketcher.Constraint("Symmetric", 1, 3, 3, 3, -1, 1),
    Sketcher.Constraint("Diameter", 0, 1.0),
    Sketcher.Constraint("DistanceY", 0, 3, 1, 3, 120.0),
    Sketcher.Constraint("DistanceX", 1, 3, 2, 3, 120.0),
    Sketcher.Constraint("DistanceX", 0, 3, -1, 1, 51.868272),
    Sketcher.Constraint("DistanceY", 0, 3, -1, 1, 68.131728),
])
pocket8 = doc.addObject("PartDesign::Pocket", "Pocket007")
body.addObject(pocket8)
pocket8.Profile = sketch10
pocket8.Type = "ThroughAll"

sketch11 = doc.addObject("Sketcher::SketchObject", "Sketch010")
body.addObject(sketch11)
sketch11.AttachmentSupport = (doc.XY_Plane, [""])
sketch11.MapMode = "FlatFace"
sketch11.AttachmentOffset = App.Placement(App.Vector(0, 0, 3), App.Rotation())
sketch11.addGeometry([
    Part.Circle(App.Vector(-51.9, -68.1, 0), App.Vector(0, 0, 1), 1.6),
    Part.Circle(App.Vector(-68.1, 51.9, 0), App.Vector(0, 0, 1), 1.6),
    Part.Circle(App.Vector(51.9, 68.1, 0), App.Vector(0, 0, 1), 1.6),
    Part.Circle(App.Vector(68.1, -51.9, 0), App.Vector(0, 0, 1), 1.6),
], False)
sketch11.addConstraint([
    Sketcher.Constraint("Equal", 0, 1),
    Sketcher.Constraint("Equal", 1, 2),
    Sketcher.Constraint("Equal", 2, 3),
    Sketcher.Constraint("Symmetric", 0, 3, 2, 3, -1, 1),
    Sketcher.Constraint("Symmetric", 1, 3, 3, 3, -1, 1),
    Sketcher.Constraint("Diameter", 0, 3.3),
    Sketcher.Constraint("DistanceY", 0, 3, 1, 3, 120.0),
    Sketcher.Constraint("DistanceX", 1, 3, 2, 3, 120.0),
    Sketcher.Constraint("DistanceX", 0, 3, -1, 1, 51.868272),
    Sketcher.Constraint("DistanceY", 0, 3, -1, 1, 68.131728),
])
doc.recompute()
hole2 = doc.addObject("PartDesign::Hole", "Hole001")
body.addObject(hole2)
hole2.Profile = sketch11
hole2.ThreadType = "None"
hole2.Diameter = 3.3
hole2.DepthType = "ThroughAll"

doc.recompute()
